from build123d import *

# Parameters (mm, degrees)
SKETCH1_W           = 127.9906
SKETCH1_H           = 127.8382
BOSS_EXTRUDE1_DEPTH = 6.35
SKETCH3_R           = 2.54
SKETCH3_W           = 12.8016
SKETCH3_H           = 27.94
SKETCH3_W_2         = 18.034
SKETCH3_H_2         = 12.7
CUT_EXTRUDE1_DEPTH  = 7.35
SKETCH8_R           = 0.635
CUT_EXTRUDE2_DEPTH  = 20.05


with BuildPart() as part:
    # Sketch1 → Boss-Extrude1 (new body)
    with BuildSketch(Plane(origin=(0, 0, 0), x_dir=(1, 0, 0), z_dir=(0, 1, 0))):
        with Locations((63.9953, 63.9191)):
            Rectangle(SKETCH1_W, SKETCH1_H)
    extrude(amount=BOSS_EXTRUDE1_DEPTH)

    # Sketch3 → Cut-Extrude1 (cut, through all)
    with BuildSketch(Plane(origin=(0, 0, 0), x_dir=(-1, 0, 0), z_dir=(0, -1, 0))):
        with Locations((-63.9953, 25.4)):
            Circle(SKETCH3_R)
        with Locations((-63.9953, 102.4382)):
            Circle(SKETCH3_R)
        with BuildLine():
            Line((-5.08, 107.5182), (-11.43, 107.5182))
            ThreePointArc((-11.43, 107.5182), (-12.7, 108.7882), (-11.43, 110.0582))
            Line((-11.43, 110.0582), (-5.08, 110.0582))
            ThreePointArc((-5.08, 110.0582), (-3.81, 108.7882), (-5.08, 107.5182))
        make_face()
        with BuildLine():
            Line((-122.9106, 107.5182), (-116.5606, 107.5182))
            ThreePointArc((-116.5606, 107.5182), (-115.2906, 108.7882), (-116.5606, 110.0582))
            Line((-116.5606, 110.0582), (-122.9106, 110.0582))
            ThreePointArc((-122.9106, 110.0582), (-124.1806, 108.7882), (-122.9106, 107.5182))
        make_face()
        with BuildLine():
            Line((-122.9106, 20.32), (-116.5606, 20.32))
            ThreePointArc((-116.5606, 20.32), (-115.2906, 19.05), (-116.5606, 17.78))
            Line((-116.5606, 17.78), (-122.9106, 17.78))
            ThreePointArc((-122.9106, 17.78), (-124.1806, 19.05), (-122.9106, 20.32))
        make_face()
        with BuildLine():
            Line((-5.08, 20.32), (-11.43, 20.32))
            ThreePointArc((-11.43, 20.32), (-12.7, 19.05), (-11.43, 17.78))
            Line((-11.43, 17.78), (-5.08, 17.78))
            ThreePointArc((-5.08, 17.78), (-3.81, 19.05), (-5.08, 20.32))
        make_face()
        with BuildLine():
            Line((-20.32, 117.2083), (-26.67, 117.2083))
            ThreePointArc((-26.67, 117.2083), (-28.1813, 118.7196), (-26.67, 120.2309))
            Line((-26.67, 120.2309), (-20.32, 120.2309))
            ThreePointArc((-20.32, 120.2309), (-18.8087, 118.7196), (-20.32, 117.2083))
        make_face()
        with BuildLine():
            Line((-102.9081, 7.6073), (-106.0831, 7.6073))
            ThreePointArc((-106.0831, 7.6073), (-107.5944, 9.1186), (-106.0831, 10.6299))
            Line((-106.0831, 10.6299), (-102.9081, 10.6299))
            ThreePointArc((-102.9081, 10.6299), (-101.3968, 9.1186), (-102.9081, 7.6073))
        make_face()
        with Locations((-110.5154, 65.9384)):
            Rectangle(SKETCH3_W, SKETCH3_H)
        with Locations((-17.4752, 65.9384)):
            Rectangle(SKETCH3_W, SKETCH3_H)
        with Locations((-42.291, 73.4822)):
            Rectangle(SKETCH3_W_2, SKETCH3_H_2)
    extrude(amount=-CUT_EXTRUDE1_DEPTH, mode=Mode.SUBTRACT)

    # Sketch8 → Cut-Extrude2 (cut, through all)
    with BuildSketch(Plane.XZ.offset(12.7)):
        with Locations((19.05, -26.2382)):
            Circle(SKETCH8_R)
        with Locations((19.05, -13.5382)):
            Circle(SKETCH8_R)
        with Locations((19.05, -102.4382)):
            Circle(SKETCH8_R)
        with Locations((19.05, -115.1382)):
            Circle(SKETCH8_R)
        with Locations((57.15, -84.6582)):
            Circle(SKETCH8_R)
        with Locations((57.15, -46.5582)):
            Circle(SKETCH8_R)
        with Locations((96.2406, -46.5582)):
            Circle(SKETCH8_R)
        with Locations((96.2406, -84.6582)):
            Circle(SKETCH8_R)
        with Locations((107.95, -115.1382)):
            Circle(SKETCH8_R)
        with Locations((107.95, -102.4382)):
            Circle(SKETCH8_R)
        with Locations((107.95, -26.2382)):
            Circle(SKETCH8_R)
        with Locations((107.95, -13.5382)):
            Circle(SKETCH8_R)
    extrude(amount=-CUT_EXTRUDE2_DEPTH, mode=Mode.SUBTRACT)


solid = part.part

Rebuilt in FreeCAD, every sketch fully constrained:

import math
import FreeCAD as App
import Part
import Sketcher
Q = App.Units.Quantity

doc = App.newDocument("Part")
body = doc.addObject("PartDesign::Body", "Body")

# Sketch on XZ plane
sketch1 = doc.addObject("Sketcher::SketchObject", "Sketch")
body.addObject(sketch1)
sketch1.AttachmentSupport = (doc.XZ_Plane, [""])
sketch1.MapMode = "FlatFace"
sketch1.addGeometry([
    Part.LineSegment(App.Vector(0, -128, 0), App.Vector(0, 0, 0)),
    Part.LineSegment(App.Vector(0, 0, 0), App.Vector(128, 0, 0)),
    Part.LineSegment(App.Vector(128, 0, 0), App.Vector(128, -128, 0)),
    Part.LineSegment(App.Vector(128, -128, 0), App.Vector(0, -128, 0)),
], False)
sketch1.addConstraint([
    Sketcher.Constraint("Coincident", 0, 2, 1, 1),
    Sketcher.Constraint("Coincident", 1, 2, 2, 1),
    Sketcher.Constraint("Coincident", 2, 2, 3, 1),
    Sketcher.Constraint("Coincident", 3, 2, 0, 1),
    Sketcher.Constraint("Vertical", 0),
    Sketcher.Constraint("Horizontal", 1),
    Sketcher.Constraint("Vertical", 2),
    Sketcher.Constraint("Horizontal", 3),
    Sketcher.Constraint("Coincident", 0, 2, -1, 1),
    Sketcher.Constraint("DistanceX", 1, 1, 1, 2, Q("5.039 in")),
    Sketcher.Constraint("DistanceY", 0, 1, 0, 2, Q("5.033 in")),
])
pad1 = doc.addObject("PartDesign::Pad", "Pad")
body.addObject(pad1)
pad1.Profile = sketch1
pad1.Length = Q("0.25 in")
pad1.Reversed = True

# Sketch on XZ plane
sketch2 = doc.addObject("Sketcher::SketchObject", "Sketch001")
body.addObject(sketch2)
sketch2.AttachmentSupport = (doc.XZ_Plane, [""])
sketch2.MapMode = "FlatFace"
sketch2.addGeometry([
    Part.Circle(App.Vector(64, -25.4, 0), App.Vector(0, 0, 1), 2.5),  # 0
    Part.Circle(App.Vector(64, -102.4, 0), App.Vector(0, 0, 1), 2.5),  # 1
    Part.LineSegment(App.Vector(11.4, -107.5, 0), App.Vector(5.1, -107.5, 0)),  # 2
    Part.ArcOfCircle(Part.Circle(App.Vector(5.1, -108.8, 0), App.Vector(0, 0, 1), 1.3), math.radians(90), math.radians(270)),  # 3
    Part.LineSegment(App.Vector(5.1, -110.1, 0), App.Vector(11.4, -110.1, 0)),  # 4
    Part.ArcOfCircle(Part.Circle(App.Vector(11.4, -108.8, 0), App.Vector(0, 0, 1), 1.3), math.radians(-90), math.radians(90)),  # 5
    Part.LineSegment(App.Vector(122.9, -107.5, 0), App.Vector(116.6, -107.5, 0)),  # 6
    Part.ArcOfCircle(Part.Circle(App.Vector(116.6, -108.8, 0), App.Vector(0, 0, 1), 1.3), math.radians(90), math.radians(270)),  # 7
    Part.LineSegment(App.Vector(116.6, -110.1, 0), App.Vector(122.9, -110.1, 0)),  # 8
    Part.ArcOfCircle(Part.Circle(App.Vector(122.9, -108.8, 0), App.Vector(0, 0, 1), 1.3), math.radians(-90), math.radians(90)),  # 9
    Part.LineSegment(App.Vector(116.6, -20.3, 0), App.Vector(122.9, -20.3, 0)),  # 10
    Part.ArcOfCircle(Part.Circle(App.Vector(122.9, -19.1, 0), App.Vector(0, 0, 1), 1.3), math.radians(-90), math.radians(90)),  # 11
    Part.LineSegment(App.Vector(122.9, -17.8, 0), App.Vector(116.6, -17.8, 0)),  # 12
    Part.ArcOfCircle(Part.Circle(App.Vector(116.6, -19.1, 0), App.Vector(0, 0, 1), 1.3), math.radians(90), math.radians(270)),  # 13
    Part.LineSegment(App.Vector(5.1, -20.3, 0), App.Vector(11.4, -20.3, 0)),  # 14
    Part.ArcOfCircle(Part.Circle(App.Vector(11.4, -19.1, 0), App.Vector(0, 0, 1), 1.3), math.radians(-90), math.radians(90)),  # 15
    Part.LineSegment(App.Vector(11.4, -17.8, 0), App.Vector(5.1, -17.8, 0)),  # 16
    Part.ArcOfCircle(Part.Circle(App.Vector(5.1, -19.1, 0), App.Vector(0, 0, 1), 1.3), math.radians(90), math.radians(270)),  # 17
    Part.LineSegment(App.Vector(26.7, -117.2, 0), App.Vector(20.3, -117.2, 0)),  # 18
    Part.ArcOfCircle(Part.Circle(App.Vector(20.3, -118.7, 0), App.Vector(0, 0, 1), 1.5), math.radians(90), math.radians(270)),  # 19
    Part.LineSegment(App.Vector(20.3, -120.2, 0), App.Vector(26.7, -120.2, 0)),  # 20
    Part.ArcOfCircle(Part.Circle(App.Vector(26.7, -118.7, 0), App.Vector(0, 0, 1), 1.5), math.radians(-90), math.radians(90)),  # 21
    Part.LineSegment(App.Vector(106.1, -7.6, 0), App.Vector(102.9, -7.6, 0)),  # 22
    Part.ArcOfCircle(Part.Circle(App.Vector(102.9, -9.1, 0), App.Vector(0, 0, 1), 1.5), math.radians(90), math.radians(270)),  # 23
    Part.LineSegment(App.Vector(102.9, -10.6, 0), App.Vector(106.1, -10.6, 0)),  # 24
    Part.ArcOfCircle(Part.Circle(App.Vector(106.1, -9.1, 0), App.Vector(0, 0, 1), 1.5), math.radians(-90), math.radians(90)),  # 25
    Part.LineSegment(App.Vector(116.9, -79.9, 0), App.Vector(116.9, -52, 0)),  # 26
    Part.LineSegment(App.Vector(116.9, -52, 0), App.Vector(104.1, -52, 0)),  # 27
    Part.LineSegment(App.Vector(104.1, -52, 0), App.Vector(104.1, -79.9, 0)),  # 28
    Part.LineSegment(App.Vector(104.1, -79.9, 0), App.Vector(116.9, -79.9, 0)),  # 29
    Part.LineSegment(App.Vector(23.9, -79.9, 0), App.Vector(23.9, -52, 0)),  # 30
    Part.LineSegment(App.Vector(23.9, -52, 0), App.Vector(11.1, -52, 0)),  # 31
    Part.LineSegment(App.Vector(11.1, -52, 0), App.Vector(11.1, -79.9, 0)),  # 32
    Part.LineSegment(App.Vector(11.1, -79.9, 0), App.Vector(23.9, -79.9, 0)),  # 33
    Part.LineSegment(App.Vector(51.3, -79.8, 0), App.Vector(51.3, -67.1, 0)),  # 34
    Part.LineSegment(App.Vector(51.3, -67.1, 0), App.Vector(33.3, -67.1, 0)),  # 35
    Part.LineSegment(App.Vector(33.3, -67.1, 0), App.Vector(33.3, -79.8, 0)),  # 36
    Part.LineSegment(App.Vector(33.3, -79.8, 0), App.Vector(51.3, -79.8, 0)),  # 37
], False)
sketch2.addConstraint([
    Sketcher.Constraint("Tangent", 2, 2, 3, 1),
    Sketcher.Constraint("Tangent", 3, 2, 4, 1),
    Sketcher.Constraint("Tangent", 4, 2, 5, 1),
    Sketcher.Constraint("Tangent", 5, 2, 2, 1),
    Sketcher.Constraint("Tangent", 6, 2, 7, 1),
    Sketcher.Constraint("Tangent", 7, 2, 8, 1),
    Sketcher.Constraint("Tangent", 8, 2, 9, 1),
    Sketcher.Constraint("Tangent", 9, 2, 6, 1),
    Sketcher.Constraint("Tangent", 10, 2, 11, 1),
    Sketcher.Constraint("Tangent", 11, 2, 12, 1),
    Sketcher.Constraint("Tangent", 12, 2, 13, 1),
    Sketcher.Constraint("Tangent", 13, 2, 10, 1),
    Sketcher.Constraint("Tangent", 14, 2, 15, 1),
    Sketcher.Constraint("Tangent", 15, 2, 16, 1),
    Sketcher.Constraint("Tangent", 16, 2, 17, 1),
    Sketcher.Constraint("Tangent", 17, 2, 14, 1),
    Sketcher.Constraint("Tangent", 18, 2, 19, 1),
    Sketcher.Constraint("Tangent", 19, 2, 20, 1),
    Sketcher.Constraint("Tangent", 20, 2, 21, 1),
    Sketcher.Constraint("Tangent", 21, 2, 18, 1),
    Sketcher.Constraint("Tangent", 22, 2, 23, 1),
    Sketcher.Constraint("Tangent", 23, 2, 24, 1),
    Sketcher.Constraint("Tangent", 24, 2, 25, 1),
    Sketcher.Constraint("Tangent", 25, 2, 22, 1),
    Sketcher.Constraint("Coincident", 26, 2, 27, 1),
    Sketcher.Constraint("Coincident", 27, 2, 28, 1),
    Sketcher.Constraint("Coincident", 28, 2, 29, 1),
    Sketcher.Constraint("Coincident", 29, 2, 26, 1),
    Sketcher.Constraint("Coincident", 30, 2, 31, 1),
    Sketcher.Constraint("Coincident", 31, 2, 32, 1),
    Sketcher.Constraint("Coincident", 32, 2, 33, 1),
    Sketcher.Constraint("Coincident", 33, 2, 30, 1),
    Sketcher.Constraint("Coincident", 34, 2, 35, 1),
    Sketcher.Constraint("Coincident", 35, 2, 36, 1),
    Sketcher.Constraint("Coincident", 36, 2, 37, 1),
    Sketcher.Constraint("Coincident", 37, 2, 34, 1),
    Sketcher.Constraint("Horizontal", 2),
    Sketcher.Constraint("Horizontal", 4),
    Sketcher.Constraint("Horizontal", 6),
    Sketcher.Constraint("Horizontal", 8),
    Sketcher.Constraint("Horizontal", 10),
    Sketcher.Constraint("Horizontal", 12),
    Sketcher.Constraint("Horizontal", 14),
    Sketcher.Constraint("Horizontal", 16),
    Sketcher.Constraint("Horizontal", 18),
    Sketcher.Constraint("Horizontal", 20),
    Sketcher.Constraint("Horizontal", 22),
    Sketcher.Constraint("Horizontal", 24),
    Sketcher.Constraint("Vertical", 26),
    Sketcher.Constraint("Horizontal", 27),
    Sketcher.Constraint("Vertical", 28),
    Sketcher.Constraint("Horizontal", 29),
    Sketcher.Constraint("Vertical", 30),
    Sketcher.Constraint("Horizontal", 31),
    Sketcher.Constraint("Vertical", 32),
    Sketcher.Constraint("Horizontal", 33),
    Sketcher.Constraint("Vertical", 34),
    Sketcher.Constraint("Horizontal", 35),
    Sketcher.Constraint("Vertical", 36),
    Sketcher.Constraint("Horizontal", 37),
    Sketcher.Constraint("Equal", 0, 1),
    Sketcher.Constraint("Equal", 5, 7),
    Sketcher.Constraint("Equal", 9, 11),
    Sketcher.Constraint("Equal", 13, 15),
    Sketcher.Constraint("Equal", 21, 23),
    Sketcher.Constraint("Horizontal", 5, 3, 7, 3),
    Sketcher.Constraint("Horizontal", 13, 3, 15, 3),
    Sketcher.Constraint("Horizontal", 27, 2, 30, 2),
    Sketcher.Constraint("Horizontal", 29, 2, 32, 2),
    Sketcher.Constraint("Vertical", 0, 3, 1, 3),
    Sketcher.Constraint("Vertical", 9, 3, 11, 3),
    Sketcher.Constraint("Vertical", 7, 3, 13, 3),
    Sketcher.Constraint("Vertical", 5, 3, 15, 3),
    Sketcher.Constraint("Vertical", 3, 3, 17, 3),
    Sketcher.Constraint("Equal", 4, 6),
    Sketcher.Constraint("Equal", 16, 18),
    Sketcher.Constraint("Equal", 29, 31),
    Sketcher.Constraint("Diameter", 0, Q("0.2 in")),
    Sketcher.Constraint("Radius", 3, Q("0.05 in")),
    Sketcher.Constraint("DistanceY", 26, 1, 26, 2, Q("1.1 in")),
    Sketcher.Constraint("DistanceY", 34, 1, 34, 2, Q("0.5 in")),
    Sketcher.Constraint("DistanceY", 0, 3, -1, 1, Q("1 in")),
    Sketcher.Constraint("DistanceX", 2, 2, 2, 1, Q("0.25 in")),
    Sketcher.Constraint("DistanceX", 35, 2, 35, 1, Q("0.71 in")),
    Sketcher.Constraint("DistanceX", -1, 1, 3, 3, Q("0.2 in")),
    Sketcher.Constraint("DistanceX", -1, 1, 19, 3, Q("0.8 in")),
    Sketcher.Constraint("DistanceY", 10, 2, -1, 1, Q("0.8 in")),
    Sketcher.Constraint("Radius", 19, Q("0.0595 in")),
    Sketcher.Constraint("DistanceY", 2, 2, 1, 3, Q("0.2 in")),
    Sketcher.Constraint("DistanceX", 22, 2, 22, 1, Q("0.125 in")),
    Sketcher.Constraint("DistanceX", 27, 2, 27, 1, Q("0.504 in")),
    Sketcher.Constraint("DistanceX", -1, 1, 30, 2, Q("0.94 in")),
    Sketcher.Constraint("DistanceX", -1, 1, 34, 2, Q("2.02 in")),
    Sketcher.Constraint("DistanceX", 27, 2, 13, 2, Q("0.49 in")),
    Sketcher.Constraint("DistanceY", 1, 3, 34, 2, Q("1.39 in")),
    Sketcher.Constraint("DistanceY", 1, 3, -1, 1, Q("4.033 in")),
    Sketcher.Constraint("DistanceX", -1, 1, 7, 3, Q("4.589 in")),
    Sketcher.Constraint("DistanceY", 19, 3, -1, 1, Q("4.674 in")),
    Sketcher.Constraint("DistanceY", 23, 3, -1, 1, Q("0.359 in")),
    Sketcher.Constraint("DistanceY", 26, 2, -1, 1, Q("2.046 in")),
    Sketcher.Constraint("DistanceX", 0, 3, 23, 3, Q("1.532 in")),
    Sketcher.Constraint("DistanceX", -1, 1, 0, 3, Q("2.5195 in")),
])
pocket1 = doc.addObject("PartDesign::Pocket", "Pocket")
body.addObject(pocket1)
pocket1.Profile = sketch2
pocket1.Type = "ThroughAll"

# Sketch on XZ plane
sketch3 = doc.addObject("Sketcher::SketchObject", "Sketch002")
body.addObject(sketch3)
sketch3.AttachmentSupport = (doc.XZ_Plane, [""])
sketch3.MapMode = "FlatFace"
sketch3.AttachmentOffset = App.Placement(App.Vector(0, 0, 0.5 * 25.4), App.Rotation())
sketch3.addGeometry([
    Part.Circle(App.Vector(19.1, -26.2, 0), App.Vector(0, 0, 1), 0.6),  # 0
    Part.Circle(App.Vector(19.1, -13.5, 0), App.Vector(0, 0, 1), 0.6),  # 1
    Part.Circle(App.Vector(19.1, -102.4, 0), App.Vector(0, 0, 1), 0.6),  # 2
    Part.Circle(App.Vector(19.1, -115.1, 0), App.Vector(0, 0, 1), 0.6),  # 3
    Part.Circle(App.Vector(57.1, -84.7, 0), App.Vector(0, 0, 1), 0.6),  # 4
    Part.Circle(App.Vector(57.1, -46.6, 0), App.Vector(0, 0, 1), 0.6),  # 5
    Part.Circle(App.Vector(96.2, -46.6, 0), App.Vector(0, 0, 1), 0.6),  # 6
    Part.Circle(App.Vector(96.2, -84.7, 0), App.Vector(0, 0, 1), 0.6),  # 7
    Part.Circle(App.Vector(108, -115.1, 0), App.Vector(0, 0, 1), 0.6),  # 8
    Part.Circle(App.Vector(108, -102.4, 0), App.Vector(0, 0, 1), 0.6),  # 9
    Part.Circle(App.Vector(108, -26.2, 0), App.Vector(0, 0, 1), 0.6),  # 10
    Part.Circle(App.Vector(108, -13.5, 0), App.Vector(0, 0, 1), 0.6),  # 11
], False)
sketch3.addConstraint([
    Sketcher.Constraint("Equal", 0, 1),
    Sketcher.Constraint("Equal", 1, 2),
    Sketcher.Constraint("Equal", 2, 3),
    Sketcher.Constraint("Equal", 3, 4),
    Sketcher.Constraint("Equal", 4, 5),
    Sketcher.Constraint("Equal", 5, 6),
    Sketcher.Constraint("Equal", 6, 7),
    Sketcher.Constraint("Equal", 7, 8),
    Sketcher.Constraint("Equal", 8, 9),
    Sketcher.Constraint("Equal", 9, 10),
    Sketcher.Constraint("Equal", 10, 11),
    Sketcher.Constraint("Horizontal", 5, 3, 6, 3),
    Sketcher.Constraint("Horizontal", 4, 3, 7, 3),
    Sketcher.Constraint("Horizontal", 3, 3, 8, 3),
    Sketcher.Constraint("Horizontal", 2, 3, 9, 3),
    Sketcher.Constraint("Horizontal", 0, 3, 10, 3),
    Sketcher.Constraint("Horizontal", 1, 3, 11, 3),
    Sketcher.Constraint("Vertical", 0, 3, 1, 3),
    Sketcher.Constraint("Vertical", 1, 3, 2, 3),
    Sketcher.Constraint("Vertical", 2, 3, 3, 3),
    Sketcher.Constraint("Vertical", 4, 3, 5, 3),
    Sketcher.Constraint("Vertical", 6, 3, 7, 3),
    Sketcher.Constraint("Vertical", 8, 3, 9, 3),
    Sketcher.Constraint("Vertical", 9, 3, 10, 3),
    Sketcher.Constraint("Vertical", 10, 3, 11, 3),
    Sketcher.Constraint("Diameter", 0, Q("0.05 in")),
    Sketcher.Constraint("DistanceY", 2, 3, 0, 3, Q("3 in")),
    Sketcher.Constraint("DistanceY", 3, 3, 1, 3, Q("4 in")),
    Sketcher.Constraint("DistanceX", 4, 3, 8, 3, Q("2 in")),
    Sketcher.Constraint("DistanceY", 0, 3, 1, 3, Q("0.5 in")),
    Sketcher.Constraint("DistanceX", 2, 3, 4, 3, Q("1.5 in")),
    Sketcher.Constraint("DistanceY", 2, 3, 4, 3, Q("0.7 in")),
    Sketcher.Constraint("DistanceY", 4, 3, 5, 3, Q("1.5 in")),
    Sketcher.Constraint("DistanceX", -1, 1, 0, 3, Q("0.75 in")),
    Sketcher.Constraint("DistanceY", 0, 3, -1, 1, Q("1.033 in")),
    Sketcher.Constraint("DistanceX", -1, 1, 6, 3, Q("3.789 in")),
])
pocket2 = doc.addObject("PartDesign::Pocket", "Pocket001")
body.addObject(pocket2)
pocket2.Profile = sketch3
pocket2.Type = "ThroughAll"

doc.recompute()
